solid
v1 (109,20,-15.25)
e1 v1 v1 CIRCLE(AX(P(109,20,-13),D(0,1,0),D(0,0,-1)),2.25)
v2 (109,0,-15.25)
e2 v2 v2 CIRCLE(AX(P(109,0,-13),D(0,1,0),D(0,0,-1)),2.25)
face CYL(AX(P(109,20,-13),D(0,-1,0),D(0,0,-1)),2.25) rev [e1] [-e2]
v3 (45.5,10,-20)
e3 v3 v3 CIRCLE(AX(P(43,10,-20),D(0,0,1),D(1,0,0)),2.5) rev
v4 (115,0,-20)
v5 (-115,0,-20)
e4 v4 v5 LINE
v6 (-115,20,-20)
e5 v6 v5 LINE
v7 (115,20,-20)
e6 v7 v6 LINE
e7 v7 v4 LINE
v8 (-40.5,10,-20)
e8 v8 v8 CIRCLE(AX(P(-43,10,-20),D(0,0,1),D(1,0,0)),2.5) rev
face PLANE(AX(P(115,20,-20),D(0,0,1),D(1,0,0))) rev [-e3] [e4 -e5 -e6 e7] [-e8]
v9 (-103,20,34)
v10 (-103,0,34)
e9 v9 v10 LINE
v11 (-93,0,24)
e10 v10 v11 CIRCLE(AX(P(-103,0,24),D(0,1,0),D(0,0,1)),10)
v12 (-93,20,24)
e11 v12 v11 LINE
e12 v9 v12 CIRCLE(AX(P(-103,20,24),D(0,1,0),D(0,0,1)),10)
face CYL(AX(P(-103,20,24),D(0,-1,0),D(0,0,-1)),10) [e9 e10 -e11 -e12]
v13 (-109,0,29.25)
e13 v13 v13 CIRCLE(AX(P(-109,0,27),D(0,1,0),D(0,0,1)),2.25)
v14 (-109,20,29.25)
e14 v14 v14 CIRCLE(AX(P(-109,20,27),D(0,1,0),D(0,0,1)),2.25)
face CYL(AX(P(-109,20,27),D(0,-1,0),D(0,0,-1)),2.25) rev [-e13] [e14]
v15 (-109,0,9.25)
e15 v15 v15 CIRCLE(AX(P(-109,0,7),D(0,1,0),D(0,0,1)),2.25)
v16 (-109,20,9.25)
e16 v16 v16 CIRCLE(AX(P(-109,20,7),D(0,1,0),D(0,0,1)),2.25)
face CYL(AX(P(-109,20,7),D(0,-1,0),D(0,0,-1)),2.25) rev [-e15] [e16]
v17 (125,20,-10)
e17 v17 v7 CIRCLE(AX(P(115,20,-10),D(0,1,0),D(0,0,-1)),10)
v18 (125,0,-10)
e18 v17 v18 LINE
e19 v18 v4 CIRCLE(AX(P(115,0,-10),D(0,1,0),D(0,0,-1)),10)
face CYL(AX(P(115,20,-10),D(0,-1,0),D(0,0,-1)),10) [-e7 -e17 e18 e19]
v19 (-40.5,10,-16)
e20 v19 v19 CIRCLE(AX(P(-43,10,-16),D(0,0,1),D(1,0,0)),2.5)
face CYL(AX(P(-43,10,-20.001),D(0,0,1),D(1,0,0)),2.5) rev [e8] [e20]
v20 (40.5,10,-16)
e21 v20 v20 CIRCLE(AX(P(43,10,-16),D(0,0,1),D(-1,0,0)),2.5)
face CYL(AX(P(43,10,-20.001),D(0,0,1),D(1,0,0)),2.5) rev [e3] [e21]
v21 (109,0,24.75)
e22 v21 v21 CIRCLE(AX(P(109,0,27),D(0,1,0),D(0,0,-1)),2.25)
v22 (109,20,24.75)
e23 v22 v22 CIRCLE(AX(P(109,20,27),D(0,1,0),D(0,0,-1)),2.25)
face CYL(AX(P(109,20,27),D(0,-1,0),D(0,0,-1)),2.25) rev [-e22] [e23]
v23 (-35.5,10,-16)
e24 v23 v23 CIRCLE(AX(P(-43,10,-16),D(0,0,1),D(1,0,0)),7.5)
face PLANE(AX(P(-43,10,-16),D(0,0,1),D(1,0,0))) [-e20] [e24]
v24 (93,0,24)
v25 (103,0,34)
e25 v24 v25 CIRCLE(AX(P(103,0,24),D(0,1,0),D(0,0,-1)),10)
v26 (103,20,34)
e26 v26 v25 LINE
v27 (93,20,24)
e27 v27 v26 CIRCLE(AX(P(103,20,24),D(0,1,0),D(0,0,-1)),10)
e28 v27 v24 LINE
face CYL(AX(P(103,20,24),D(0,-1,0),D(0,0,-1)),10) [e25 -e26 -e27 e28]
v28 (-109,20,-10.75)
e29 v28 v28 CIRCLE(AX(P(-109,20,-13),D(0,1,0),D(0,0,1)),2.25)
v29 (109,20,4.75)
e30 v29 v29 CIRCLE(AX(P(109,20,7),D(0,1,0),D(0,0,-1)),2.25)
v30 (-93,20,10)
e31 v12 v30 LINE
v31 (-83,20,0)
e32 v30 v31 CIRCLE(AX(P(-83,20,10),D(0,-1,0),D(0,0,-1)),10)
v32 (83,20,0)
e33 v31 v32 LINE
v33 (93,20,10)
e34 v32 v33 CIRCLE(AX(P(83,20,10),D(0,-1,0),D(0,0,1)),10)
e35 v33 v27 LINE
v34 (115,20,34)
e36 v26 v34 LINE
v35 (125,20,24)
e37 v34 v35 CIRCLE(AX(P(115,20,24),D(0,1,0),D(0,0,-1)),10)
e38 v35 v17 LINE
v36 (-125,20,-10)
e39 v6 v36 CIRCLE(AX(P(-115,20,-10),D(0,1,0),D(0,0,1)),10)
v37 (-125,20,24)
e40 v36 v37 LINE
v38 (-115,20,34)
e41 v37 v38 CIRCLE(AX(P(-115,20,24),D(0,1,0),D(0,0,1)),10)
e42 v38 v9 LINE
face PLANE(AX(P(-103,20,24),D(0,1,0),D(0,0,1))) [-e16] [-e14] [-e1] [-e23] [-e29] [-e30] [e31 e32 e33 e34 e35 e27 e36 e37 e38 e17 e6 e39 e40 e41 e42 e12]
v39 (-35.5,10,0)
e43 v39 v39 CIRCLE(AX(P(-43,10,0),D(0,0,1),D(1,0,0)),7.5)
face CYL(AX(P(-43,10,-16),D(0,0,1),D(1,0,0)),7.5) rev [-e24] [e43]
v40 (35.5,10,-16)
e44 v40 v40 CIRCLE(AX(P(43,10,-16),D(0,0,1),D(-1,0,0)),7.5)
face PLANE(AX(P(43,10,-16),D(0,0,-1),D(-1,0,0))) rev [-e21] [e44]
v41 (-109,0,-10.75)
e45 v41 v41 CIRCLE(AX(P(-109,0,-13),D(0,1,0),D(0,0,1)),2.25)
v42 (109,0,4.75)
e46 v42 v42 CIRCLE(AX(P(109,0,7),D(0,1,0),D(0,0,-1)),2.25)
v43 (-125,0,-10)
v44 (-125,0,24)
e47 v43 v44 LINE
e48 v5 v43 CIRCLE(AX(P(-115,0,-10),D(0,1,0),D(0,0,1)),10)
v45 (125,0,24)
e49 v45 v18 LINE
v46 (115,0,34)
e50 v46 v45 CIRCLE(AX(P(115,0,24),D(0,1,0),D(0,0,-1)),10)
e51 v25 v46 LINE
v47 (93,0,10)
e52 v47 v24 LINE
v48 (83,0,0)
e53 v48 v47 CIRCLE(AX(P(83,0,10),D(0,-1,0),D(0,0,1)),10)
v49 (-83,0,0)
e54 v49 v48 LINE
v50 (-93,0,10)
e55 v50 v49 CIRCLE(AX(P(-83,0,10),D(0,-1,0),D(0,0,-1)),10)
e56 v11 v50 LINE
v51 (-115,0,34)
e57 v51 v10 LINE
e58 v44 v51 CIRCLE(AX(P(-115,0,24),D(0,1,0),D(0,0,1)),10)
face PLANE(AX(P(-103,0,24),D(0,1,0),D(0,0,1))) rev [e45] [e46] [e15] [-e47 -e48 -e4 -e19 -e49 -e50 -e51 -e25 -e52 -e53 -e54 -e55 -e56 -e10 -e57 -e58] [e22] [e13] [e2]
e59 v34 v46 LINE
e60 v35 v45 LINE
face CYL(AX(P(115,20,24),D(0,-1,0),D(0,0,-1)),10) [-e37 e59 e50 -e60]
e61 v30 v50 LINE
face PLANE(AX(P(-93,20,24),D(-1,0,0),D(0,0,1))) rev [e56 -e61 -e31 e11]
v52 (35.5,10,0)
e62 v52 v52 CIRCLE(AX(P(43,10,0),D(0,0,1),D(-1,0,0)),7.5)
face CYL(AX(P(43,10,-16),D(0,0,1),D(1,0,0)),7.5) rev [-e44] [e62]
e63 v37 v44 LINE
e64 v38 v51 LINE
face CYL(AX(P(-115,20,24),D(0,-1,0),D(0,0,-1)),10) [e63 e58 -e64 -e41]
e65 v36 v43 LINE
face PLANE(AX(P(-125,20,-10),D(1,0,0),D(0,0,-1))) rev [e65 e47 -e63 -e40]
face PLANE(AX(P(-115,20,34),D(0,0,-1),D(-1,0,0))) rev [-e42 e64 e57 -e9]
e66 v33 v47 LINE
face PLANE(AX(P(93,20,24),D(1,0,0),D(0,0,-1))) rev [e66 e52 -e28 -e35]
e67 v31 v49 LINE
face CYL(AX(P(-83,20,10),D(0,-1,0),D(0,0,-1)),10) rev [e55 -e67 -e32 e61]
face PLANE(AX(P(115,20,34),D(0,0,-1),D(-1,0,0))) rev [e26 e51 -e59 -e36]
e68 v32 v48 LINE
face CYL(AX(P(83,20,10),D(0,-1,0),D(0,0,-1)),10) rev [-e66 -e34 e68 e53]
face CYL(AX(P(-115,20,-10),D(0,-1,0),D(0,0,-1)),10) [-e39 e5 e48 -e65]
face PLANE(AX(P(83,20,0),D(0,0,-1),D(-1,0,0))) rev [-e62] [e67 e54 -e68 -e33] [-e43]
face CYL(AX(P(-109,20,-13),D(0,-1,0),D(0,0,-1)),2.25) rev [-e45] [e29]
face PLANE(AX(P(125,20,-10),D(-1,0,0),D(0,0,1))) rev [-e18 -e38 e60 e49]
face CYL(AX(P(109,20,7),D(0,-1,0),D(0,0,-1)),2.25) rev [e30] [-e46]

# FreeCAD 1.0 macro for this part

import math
import FreeCAD as App
import Part
import Sketcher
from FreeCAD import Vector
Q = App.Units.Quantity

doc = App.newDocument("Part")
body = doc.addObject("PartDesign::Body", "Body")

# Sketch on XZ plane
sketch1 = body.newObject("Sketcher::SketchObject", "Sketch")
sketch1.AttachmentSupport = (doc.getObject("XZ_Plane"), [""])
sketch1.MapMode = "FlatFace"
sketch1.addGeometry(Part.LineSegment(Vector(115, -20, 0), Vector(-115, -20, 0)), False)
sketch1.addGeometry(Part.ArcOfCircle(Part.Circle(Vector(-115, -10, 0), Vector(0, 0, 1), 10), math.radians(180), math.radians(270)), False)
sketch1.addGeometry(Part.LineSegment(Vector(-125, -10, 0), Vector(-125, 24, 0)), False)
sketch1.addGeometry(Part.ArcOfCircle(Part.Circle(Vector(-115, 24, 0), Vector(0, 0, 1), 10), math.radians(90), math.radians(180)), False)
sketch1.addGeometry(Part.LineSegment(Vector(-115, 34, 0), Vector(-103, 34, 0)), False)
sketch1.addGeometry(Part.ArcOfCircle(Part.Circle(Vector(-103, 24, 0), Vector(0, 0, 1), 10), math.radians(0), math.radians(90)), False)
sketch1.addGeometry(Part.LineSegment(Vector(-93, 24, 0), Vector(-93, 10, 0)), False)
sketch1.addGeometry(Part.ArcOfCircle(Part.Circle(Vector(-83, 10, 0), Vector(0, 0, 1), 10), math.radians(180), math.radians(270)), False)
sketch1.addGeometry(Part.LineSegment(Vector(-83, 0, 0), Vector(83, 0, 0)), False)
sketch1.addGeometry(Part.ArcOfCircle(Part.Circle(Vector(83, 10, 0), Vector(0, 0, 1), 10), math.radians(-90), math.radians(0)), False)
sketch1.addGeometry(Part.LineSegment(Vector(93, 10, 0), Vector(93, 24, 0)), False)
sketch1.addGeometry(Part.ArcOfCircle(Part.Circle(Vector(103, 24, 0), Vector(0, 0, 1), 10), math.radians(90), math.radians(180)), False)
sketch1.addGeometry(Part.LineSegment(Vector(103, 34, 0), Vector(115, 34, 0)), False)
sketch1.addGeometry(Part.ArcOfCircle(Part.Circle(Vector(115, 24, 0), Vector(0, 0, 1), 10), math.radians(0), math.radians(90)), False)
sketch1.addGeometry(Part.LineSegment(Vector(125, 24, 0), Vector(125, -10, 0)), False)
sketch1.addGeometry(Part.ArcOfCircle(Part.Circle(Vector(115, -10, 0), Vector(0, 0, 1), 10), math.radians(-90), math.radians(0)), False)
sketch1.addGeometry(Part.Circle(Vector(-109, 27, 0), Vector(0, 0, 1), 2.2), False)
sketch1.addGeometry(Part.Circle(Vector(109, 27, 0), Vector(0, 0, 1), 2.2), False)
sketch1.addGeometry(Part.Circle(Vector(-109, 7, 0), Vector(0, 0, 1), 2.2), False)
sketch1.addGeometry(Part.Circle(Vector(-109, -13, 0), Vector(0, 0, 1), 2.2), False)
sketch1.addGeometry(Part.Circle(Vector(109, 7, 0), Vector(0, 0, 1), 2.2), False)
sketch1.addGeometry(Part.Circle(Vector(109, -13, 0), Vector(0, 0, 1), 2.2), False)
sketch1.addConstraint(Sketcher.Constraint("Tangent", 0, 2, 1, 2))
sketch1.addConstraint(Sketcher.Constraint("Tangent", 1, 1, 2, 1))
sketch1.addConstraint(Sketcher.Constraint("Tangent", 2, 2, 3, 2))
sketch1.addConstraint(Sketcher.Constraint("Tangent", 3, 1, 4, 1))
sketch1.addConstraint(Sketcher.Constraint("Tangent", 4, 2, 5, 2))
sketch1.addConstraint(Sketcher.Constraint("Tangent", 5, 1, 6, 1))
sketch1.addConstraint(Sketcher.Constraint("Tangent", 6, 2, 7, 1))
sketch1.addConstraint(Sketcher.Constraint("Tangent", 7, 2, 8, 1))
sketch1.addConstraint(Sketcher.Constraint("Tangent", 8, 2, 9, 1))
sketch1.addConstraint(Sketcher.Constraint("Tangent", 9, 2, 10, 1))
sketch1.addConstraint(Sketcher.Constraint("Tangent", 10, 2, 11, 2))
sketch1.addConstraint(Sketcher.Constraint("Tangent", 11, 1, 12, 1))
sketch1.addConstraint(Sketcher.Constraint("Tangent", 12, 2, 13, 2))
sketch1.addConstraint(Sketcher.Constraint("Tangent", 13, 1, 14, 1))
sketch1.addConstraint(Sketcher.Constraint("Tangent", 14, 2, 15, 2))
sketch1.addConstraint(Sketcher.Constraint("Tangent", 15, 1, 0, 1))
sketch1.addConstraint(Sketcher.Constraint("Horizontal", 0))
sketch1.addConstraint(Sketcher.Constraint("Vertical", 2))
sketch1.addConstraint(Sketcher.Constraint("Horizontal", 4))
sketch1.addConstraint(Sketcher.Constraint("Vertical", 6))
sketch1.addConstraint(Sketcher.Constraint("Horizontal", 8))
sketch1.addConstraint(Sketcher.Constraint("Vertical", 10))
sketch1.addConstraint(Sketcher.Constraint("Horizontal", 12))
sketch1.addConstraint(Sketcher.Constraint("Vertical", 14))
sketch1.addConstraint(Sketcher.Constraint("Equal", 1, 3))
sketch1.addConstraint(Sketcher.Constraint("Equal", 3, 5))
sketch1.addConstraint(Sketcher.Constraint("Equal", 5, 7))
sketch1.addConstraint(Sketcher.Constraint("Equal", 7, 9))
sketch1.addConstraint(Sketcher.Constraint("Equal", 9, 11))
sketch1.addConstraint(Sketcher.Constraint("Equal", 11, 13))
sketch1.addConstraint(Sketcher.Constraint("Equal", 13, 15))
sketch1.addConstraint(Sketcher.Constraint("Equal", 16, 17))
sketch1.addConstraint(Sketcher.Constraint("Equal", 17, 18))
sketch1.addConstraint(Sketcher.Constraint("Equal", 18, 19))
sketch1.addConstraint(Sketcher.Constraint("Equal", 19, 20))
sketch1.addConstraint(Sketcher.Constraint("Equal", 20, 21))
sketch1.addConstraint(Sketcher.Constraint("Symmetric", 7, 2, 8, 2, -1, 1))
sketch1.addConstraint(Sketcher.Constraint("Symmetric", 3, 3, 13, 3, -2))
sketch1.addConstraint(Sketcher.Constraint("Symmetric", 16, 3, 17, 3, -2))
sketch1.addConstraint(Sketcher.Constraint("Symmetric", 18, 3, 20, 3, -2))
sketch1.addConstraint(Sketcher.Constraint("Symmetric", 19, 3, 21, 3, -2))
sketch1.addConstraint(Sketcher.Constraint("Vertical", 16, 3, 18, 3))
sketch1.addConstraint(Sketcher.Constraint("Vertical", 18, 3, 19, 3))
sketch1.addConstraint(Sketcher.Constraint("Radius", 1, Q("10 mm")))
sketch1.addConstraint(Sketcher.Constraint("Diameter", 16, Q("4.5 mm")))
sketch1.addConstraint(Sketcher.Constraint("DistanceX", 0, 2, 0, 1, Q("230 mm")))
sketch1.addConstraint(Sketcher.Constraint("DistanceX", 4, 1, 4, 2, Q("12 mm")))
sketch1.addConstraint(Sketcher.Constraint("DistanceY", 2, 1, 2, 2, Q("34 mm")))
sketch1.addConstraint(Sketcher.Constraint("DistanceY", 6, 2, 6, 1, Q("14 mm")))
sketch1.addConstraint(Sketcher.Constraint("DistanceX", 16, 3, -1, 1, Q("109 mm")))
sketch1.addConstraint(Sketcher.Constraint("DistanceY", -1, 1, 16, 3, Q("27 mm")))
sketch1.addConstraint(Sketcher.Constraint("DistanceY", -1, 1, 18, 3, Q("7 mm")))
sketch1.addConstraint(Sketcher.Constraint("DistanceY", 19, 3, -1, 1, Q("13 mm")))
pad1 = body.newObject("PartDesign::Pad", "Pad")
pad1.Profile = sketch1
pad1.Length = 20
pad1.Reversed = True

# Sketch on XY plane
sketch2 = body.newObject("Sketcher::SketchObject", "Sketch001")
sketch2.AttachmentSupport = (doc.getObject("XY_Plane"), [""])
sketch2.MapMode = "FlatFace"
sketch2.addGeometry(Part.Circle(Vector(-43, 10, 0), Vector(0, 0, 1), 8), False)
sketch2.addGeometry(Part.Circle(Vector(43, 10, 0), Vector(0, 0, 1), 8), False)
sketch2.addConstraint(Sketcher.Constraint("Equal", 0, 1))
sketch2.addConstraint(Sketcher.Constraint("Symmetric", 0, 3, 1, 3, -2))
sketch2.addConstraint(Sketcher.Constraint("Diameter", 0, Q("15 mm")))
sketch2.addConstraint(Sketcher.Constraint("DistanceX", 0, 3, -1, 1, Q("43 mm")))
sketch2.addConstraint(Sketcher.Constraint("DistanceY", -1, 1, 0, 3, Q("10 mm")))
pocket1 = body.newObject("PartDesign::Pocket", "Pocket")
pocket1.Profile = sketch2
pocket1.Length = 16

# Sketch on XY plane
sketch3 = body.newObject("Sketcher::SketchObject", "Sketch002")
sketch3.AttachmentSupport = (doc.getObject("XY_Plane"), [""])
sketch3.MapMode = "FlatFace"
sketch3.AttachmentOffset = App.Placement(Vector(0, 0, -16), App.Rotation())
sketch3.addGeometry(Part.Circle(Vector(-43, 10, 0), Vector(0, 0, 1), 2.5), False)
sketch3.addConstraint(Sketcher.Constraint("Diameter", 0, Q("5 mm")))
sketch3.addConstraint(Sketcher.Constraint("DistanceX", 0, 3, -1, 1, Q("43 mm")))
sketch3.addConstraint(Sketcher.Constraint("DistanceY", -1, 1, 0, 3, Q("10 mm")))
pocket2 = body.newObject("PartDesign::Pocket", "Pocket001")
pocket2.Profile = sketch3
pocket2.Type = "UpToFirst"

# Sketch on XY plane
sketch4 = body.newObject("Sketcher::SketchObject", "Sketch003")
sketch4.AttachmentSupport = (doc.getObject("XY_Plane"), [""])
sketch4.MapMode = "FlatFace"
sketch4.AttachmentOffset = App.Placement(Vector(0, 0, -16), App.Rotation())
sketch4.addGeometry(Part.Circle(Vector(43, 10, 0), Vector(0, 0, 1), 2.5), False)
sketch4.addConstraint(Sketcher.Constraint("Diameter", 0, Q("5 mm")))
sketch4.addConstraint(Sketcher.Constraint("DistanceX", -1, 1, 0, 3, Q("43 mm")))
sketch4.addConstraint(Sketcher.Constraint("DistanceY", -1, 1, 0, 3, Q("10 mm")))
pocket3 = body.newObject("PartDesign::Pocket", "Pocket002")
pocket3.Profile = sketch4
pocket3.Type = "UpToFirst"

doc.recompute()
